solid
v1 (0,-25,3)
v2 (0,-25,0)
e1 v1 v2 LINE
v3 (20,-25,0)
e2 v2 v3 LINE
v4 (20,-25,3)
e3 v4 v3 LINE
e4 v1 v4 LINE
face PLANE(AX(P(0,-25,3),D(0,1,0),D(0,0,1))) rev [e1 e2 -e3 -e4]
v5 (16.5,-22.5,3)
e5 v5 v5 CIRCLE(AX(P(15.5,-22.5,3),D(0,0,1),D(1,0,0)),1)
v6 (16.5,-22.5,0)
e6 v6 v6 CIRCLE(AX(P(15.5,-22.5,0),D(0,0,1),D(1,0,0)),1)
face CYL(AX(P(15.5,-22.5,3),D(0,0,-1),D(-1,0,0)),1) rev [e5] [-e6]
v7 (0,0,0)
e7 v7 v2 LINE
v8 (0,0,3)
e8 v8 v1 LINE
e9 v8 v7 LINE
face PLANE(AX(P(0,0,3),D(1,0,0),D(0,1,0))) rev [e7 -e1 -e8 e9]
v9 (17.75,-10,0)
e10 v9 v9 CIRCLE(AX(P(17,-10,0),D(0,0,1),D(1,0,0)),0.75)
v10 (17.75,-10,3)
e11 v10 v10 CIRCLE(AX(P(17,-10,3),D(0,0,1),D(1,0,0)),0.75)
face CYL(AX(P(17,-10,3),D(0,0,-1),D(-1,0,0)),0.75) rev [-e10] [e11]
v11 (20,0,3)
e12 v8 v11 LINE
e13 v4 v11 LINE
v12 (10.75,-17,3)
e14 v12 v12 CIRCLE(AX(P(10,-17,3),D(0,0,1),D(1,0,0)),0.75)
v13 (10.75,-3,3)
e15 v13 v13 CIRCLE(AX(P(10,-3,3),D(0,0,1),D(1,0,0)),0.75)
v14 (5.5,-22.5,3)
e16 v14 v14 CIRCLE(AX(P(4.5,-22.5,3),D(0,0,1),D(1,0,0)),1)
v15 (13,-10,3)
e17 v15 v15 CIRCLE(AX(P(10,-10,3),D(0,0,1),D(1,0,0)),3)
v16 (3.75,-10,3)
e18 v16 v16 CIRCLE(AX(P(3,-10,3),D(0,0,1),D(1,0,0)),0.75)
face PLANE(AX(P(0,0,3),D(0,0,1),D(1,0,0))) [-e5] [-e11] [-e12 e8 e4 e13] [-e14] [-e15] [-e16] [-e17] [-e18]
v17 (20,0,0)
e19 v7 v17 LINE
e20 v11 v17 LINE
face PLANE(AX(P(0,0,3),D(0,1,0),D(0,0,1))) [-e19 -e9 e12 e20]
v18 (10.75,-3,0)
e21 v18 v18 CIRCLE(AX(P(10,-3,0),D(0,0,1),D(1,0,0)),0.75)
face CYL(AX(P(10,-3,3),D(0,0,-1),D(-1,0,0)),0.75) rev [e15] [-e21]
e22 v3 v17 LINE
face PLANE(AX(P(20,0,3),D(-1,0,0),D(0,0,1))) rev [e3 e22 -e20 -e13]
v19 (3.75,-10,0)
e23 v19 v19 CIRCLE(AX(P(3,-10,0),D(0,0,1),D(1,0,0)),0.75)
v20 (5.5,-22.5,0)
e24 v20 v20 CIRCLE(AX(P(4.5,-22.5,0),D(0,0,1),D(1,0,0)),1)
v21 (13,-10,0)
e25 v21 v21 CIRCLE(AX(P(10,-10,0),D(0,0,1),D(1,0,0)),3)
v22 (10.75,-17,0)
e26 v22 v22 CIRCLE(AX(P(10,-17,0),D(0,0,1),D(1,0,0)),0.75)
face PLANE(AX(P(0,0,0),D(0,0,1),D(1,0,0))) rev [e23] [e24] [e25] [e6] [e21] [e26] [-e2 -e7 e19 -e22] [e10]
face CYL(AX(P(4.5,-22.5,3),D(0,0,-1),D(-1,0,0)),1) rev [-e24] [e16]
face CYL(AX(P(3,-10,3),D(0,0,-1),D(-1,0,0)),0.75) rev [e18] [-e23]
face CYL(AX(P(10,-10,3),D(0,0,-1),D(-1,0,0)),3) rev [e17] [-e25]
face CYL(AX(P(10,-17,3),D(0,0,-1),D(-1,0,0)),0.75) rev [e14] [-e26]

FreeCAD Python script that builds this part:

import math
import FreeCAD as App
import Part
import Sketcher

V = App.Vector


def add_polygon(sketch, points):
    """Adds a closed chain of lines whose ends are joined by coincident constraints."""
    first, n = sketch.GeometryCount, len(points)
    for a, b in zip(points, points[1:] + points[:1]):
        sketch.addGeometry(Part.LineSegment(App.Vector(*a, 0), App.Vector(*b, 0)), False)
    for i in range(n):
        sketch.addConstraint(Sketcher.Constraint("Coincident", first + i, 2, first + (i + 1) % n, 1))

doc = App.newDocument("Part")
params = doc.addObject("Spreadsheet::Sheet", "Params")
for row, (alias, value) in enumerate([
    ("sketch1_diameter", "2 mm"),
    ("sketch1_radius", "3 mm"),
    ("sketch1_diameter2", "1.5 mm"),
    ("sketch1_width", "20 mm"),
    ("sketch1_height", "25 mm"),
    ("pad1_length", "3 mm"),
], start=1):
    params.set(f"A{row}", alias)
    params.set(f"B{row}", "=" + value)
    params.setAlias(f"B{row}", alias)

body = doc.addObject("PartDesign::Body", "Body")

sketch1 = body.newObject("Sketcher::SketchObject", "Sketch")
sketch1.AttachmentSupport = (doc.getObject("XY_Plane"), [""])
sketch1.MapMode = "FlatFace"
add_polygon(sketch1, [(0, 0), (0, -25), (20, -25), (20, 0)])
sketch1.addGeometry(Part.Circle(V(4.5, -22.5, 0), V(0, 0, 1), 1), False)
sketch1.addGeometry(Part.Circle(V(15.5, -22.5, 0), V(0, 0, 1), 1), False)
sketch1.addGeometry(Part.Circle(V(10, -17, 0), V(0, 0, 1), 0.8), False)
sketch1.addGeometry(Part.Circle(V(3, -10, 0), V(0, 0, 1), 0.8), False)
sketch1.addGeometry(Part.ArcOfCircle(Part.Circle(V(10, -10, 0), V(0, 0, 1), 3), math.radians(90), math.radians(180)), False)
sketch1.addGeometry(Part.ArcOfCircle(Part.Circle(V(10, -10, 0), V(0, 0, 1), 3), math.radians(0), math.radians(90)), False)
sketch1.addGeometry(Part.ArcOfCircle(Part.Circle(V(10, -10, 0), V(0, 0, 1), 3), math.radians(-90), math.radians(0)), False)
sketch1.addGeometry(Part.ArcOfCircle(Part.Circle(V(10, -10, 0), V(0, 0, 1), 3), math.radians(180), math.radians(270)), False)
sketch1.addGeometry(Part.Circle(V(17, -10, 0), V(0, 0, 1), 0.8), False)
sketch1.addGeometry(Part.Circle(V(10, -3, 0), V(0, 0, 1), 0.8), False)
sketch1.addConstraint([
    Sketcher.Constraint("Tangent", 8, 1, 9, 2),
    Sketcher.Constraint("Tangent", 9, 1, 10, 2),
    Sketcher.Constraint("Tangent", 10, 1, 11, 2),
    Sketcher.Constraint("Tangent", 11, 1, 8, 2),
    Sketcher.Constraint("Vertical", 0),
    Sketcher.Constraint("Horizontal", 1),
    Sketcher.Constraint("Vertical", 2),
    Sketcher.Constraint("Horizontal", 3),
    Sketcher.Constraint("Coincident", 3, 2, -1, 1),
    Sketcher.Constraint("Equal", 4, 5),
    Sketcher.Constraint("Equal", 6, 7),
    Sketcher.Constraint("Equal", 8, 9),
    Sketcher.Constraint("Equal", 7, 12),
    Sketcher.Constraint("Equal", 12, 13),
    Sketcher.Constraint("Horizontal", 4, 3, 5, 3),
    Sketcher.Constraint("Horizontal", 7, 3, 8, 3),
    Sketcher.Constraint("Horizontal", 11, 3, 12, 3),
    Sketcher.Constraint("Horizontal", 12, 3, 9, 1),
    Sketcher.Constraint("Horizontal", 9, 1, 11, 1),
    Sketcher.Constraint("Vertical", 6, 3, 8, 3),
    Sketcher.Constraint("Vertical", 11, 3, 13, 3),
    Sketcher.Constraint("Vertical", 13, 3, 8, 1),
    Sketcher.Constraint("Vertical", 8, 1, 10, 1),
    Sketcher.Constraint("Diameter", 4, 2.0),
    Sketcher.Constraint("Radius", 8, 3.0),
    Sketcher.Constraint("Diameter", 6, 1.5),
    Sketcher.Constraint("DistanceX", 1, 1, 1, 2, 20.0),
    Sketcher.Constraint("DistanceY", 0, 2, 0, 1, 25.0),
    Sketcher.Constraint("DistanceX", -1, 1, 6, 3, 10.0),
    Sketcher.Constraint("DistanceY", 6, 3, -1, 1, 17.0),
    Sketcher.Constraint("DistanceX", -1, 1, 7, 3, 3.0),
    Sketcher.Constraint("DistanceY", 7, 3, -1, 1, 10.0),
    Sketcher.Constraint("DistanceX", -1, 1, 12, 3, 17.0),
    Sketcher.Constraint("DistanceY", 13, 3, -1, 1, 3.0),
    Sketcher.Constraint("DistanceX", 4, 3, 5, 3, 11.0),
    Sketcher.Constraint("DistanceX", -1, 1, 4, 3, 4.5),
    Sketcher.Constraint("DistanceY", 4, 3, -1, 1, 22.5),
])
sketch1.setExpression("Constraints[27]", "Params.sketch1_diameter")
sketch1.setExpression("Constraints[28]", "Params.sketch1_radius")
sketch1.setExpression("Constraints[29]", "Params.sketch1_diameter2")
sketch1.setExpression("Constraints[30]", "Params.sketch1_width")
sketch1.setExpression("Constraints[31]", "Params.sketch1_height")
pad1 = body.newObject("PartDesign::Pad", "Pad")
pad1.Profile = sketch1
pad1.setExpression("Length", "Params.pad1_length")

doc.recompute()
